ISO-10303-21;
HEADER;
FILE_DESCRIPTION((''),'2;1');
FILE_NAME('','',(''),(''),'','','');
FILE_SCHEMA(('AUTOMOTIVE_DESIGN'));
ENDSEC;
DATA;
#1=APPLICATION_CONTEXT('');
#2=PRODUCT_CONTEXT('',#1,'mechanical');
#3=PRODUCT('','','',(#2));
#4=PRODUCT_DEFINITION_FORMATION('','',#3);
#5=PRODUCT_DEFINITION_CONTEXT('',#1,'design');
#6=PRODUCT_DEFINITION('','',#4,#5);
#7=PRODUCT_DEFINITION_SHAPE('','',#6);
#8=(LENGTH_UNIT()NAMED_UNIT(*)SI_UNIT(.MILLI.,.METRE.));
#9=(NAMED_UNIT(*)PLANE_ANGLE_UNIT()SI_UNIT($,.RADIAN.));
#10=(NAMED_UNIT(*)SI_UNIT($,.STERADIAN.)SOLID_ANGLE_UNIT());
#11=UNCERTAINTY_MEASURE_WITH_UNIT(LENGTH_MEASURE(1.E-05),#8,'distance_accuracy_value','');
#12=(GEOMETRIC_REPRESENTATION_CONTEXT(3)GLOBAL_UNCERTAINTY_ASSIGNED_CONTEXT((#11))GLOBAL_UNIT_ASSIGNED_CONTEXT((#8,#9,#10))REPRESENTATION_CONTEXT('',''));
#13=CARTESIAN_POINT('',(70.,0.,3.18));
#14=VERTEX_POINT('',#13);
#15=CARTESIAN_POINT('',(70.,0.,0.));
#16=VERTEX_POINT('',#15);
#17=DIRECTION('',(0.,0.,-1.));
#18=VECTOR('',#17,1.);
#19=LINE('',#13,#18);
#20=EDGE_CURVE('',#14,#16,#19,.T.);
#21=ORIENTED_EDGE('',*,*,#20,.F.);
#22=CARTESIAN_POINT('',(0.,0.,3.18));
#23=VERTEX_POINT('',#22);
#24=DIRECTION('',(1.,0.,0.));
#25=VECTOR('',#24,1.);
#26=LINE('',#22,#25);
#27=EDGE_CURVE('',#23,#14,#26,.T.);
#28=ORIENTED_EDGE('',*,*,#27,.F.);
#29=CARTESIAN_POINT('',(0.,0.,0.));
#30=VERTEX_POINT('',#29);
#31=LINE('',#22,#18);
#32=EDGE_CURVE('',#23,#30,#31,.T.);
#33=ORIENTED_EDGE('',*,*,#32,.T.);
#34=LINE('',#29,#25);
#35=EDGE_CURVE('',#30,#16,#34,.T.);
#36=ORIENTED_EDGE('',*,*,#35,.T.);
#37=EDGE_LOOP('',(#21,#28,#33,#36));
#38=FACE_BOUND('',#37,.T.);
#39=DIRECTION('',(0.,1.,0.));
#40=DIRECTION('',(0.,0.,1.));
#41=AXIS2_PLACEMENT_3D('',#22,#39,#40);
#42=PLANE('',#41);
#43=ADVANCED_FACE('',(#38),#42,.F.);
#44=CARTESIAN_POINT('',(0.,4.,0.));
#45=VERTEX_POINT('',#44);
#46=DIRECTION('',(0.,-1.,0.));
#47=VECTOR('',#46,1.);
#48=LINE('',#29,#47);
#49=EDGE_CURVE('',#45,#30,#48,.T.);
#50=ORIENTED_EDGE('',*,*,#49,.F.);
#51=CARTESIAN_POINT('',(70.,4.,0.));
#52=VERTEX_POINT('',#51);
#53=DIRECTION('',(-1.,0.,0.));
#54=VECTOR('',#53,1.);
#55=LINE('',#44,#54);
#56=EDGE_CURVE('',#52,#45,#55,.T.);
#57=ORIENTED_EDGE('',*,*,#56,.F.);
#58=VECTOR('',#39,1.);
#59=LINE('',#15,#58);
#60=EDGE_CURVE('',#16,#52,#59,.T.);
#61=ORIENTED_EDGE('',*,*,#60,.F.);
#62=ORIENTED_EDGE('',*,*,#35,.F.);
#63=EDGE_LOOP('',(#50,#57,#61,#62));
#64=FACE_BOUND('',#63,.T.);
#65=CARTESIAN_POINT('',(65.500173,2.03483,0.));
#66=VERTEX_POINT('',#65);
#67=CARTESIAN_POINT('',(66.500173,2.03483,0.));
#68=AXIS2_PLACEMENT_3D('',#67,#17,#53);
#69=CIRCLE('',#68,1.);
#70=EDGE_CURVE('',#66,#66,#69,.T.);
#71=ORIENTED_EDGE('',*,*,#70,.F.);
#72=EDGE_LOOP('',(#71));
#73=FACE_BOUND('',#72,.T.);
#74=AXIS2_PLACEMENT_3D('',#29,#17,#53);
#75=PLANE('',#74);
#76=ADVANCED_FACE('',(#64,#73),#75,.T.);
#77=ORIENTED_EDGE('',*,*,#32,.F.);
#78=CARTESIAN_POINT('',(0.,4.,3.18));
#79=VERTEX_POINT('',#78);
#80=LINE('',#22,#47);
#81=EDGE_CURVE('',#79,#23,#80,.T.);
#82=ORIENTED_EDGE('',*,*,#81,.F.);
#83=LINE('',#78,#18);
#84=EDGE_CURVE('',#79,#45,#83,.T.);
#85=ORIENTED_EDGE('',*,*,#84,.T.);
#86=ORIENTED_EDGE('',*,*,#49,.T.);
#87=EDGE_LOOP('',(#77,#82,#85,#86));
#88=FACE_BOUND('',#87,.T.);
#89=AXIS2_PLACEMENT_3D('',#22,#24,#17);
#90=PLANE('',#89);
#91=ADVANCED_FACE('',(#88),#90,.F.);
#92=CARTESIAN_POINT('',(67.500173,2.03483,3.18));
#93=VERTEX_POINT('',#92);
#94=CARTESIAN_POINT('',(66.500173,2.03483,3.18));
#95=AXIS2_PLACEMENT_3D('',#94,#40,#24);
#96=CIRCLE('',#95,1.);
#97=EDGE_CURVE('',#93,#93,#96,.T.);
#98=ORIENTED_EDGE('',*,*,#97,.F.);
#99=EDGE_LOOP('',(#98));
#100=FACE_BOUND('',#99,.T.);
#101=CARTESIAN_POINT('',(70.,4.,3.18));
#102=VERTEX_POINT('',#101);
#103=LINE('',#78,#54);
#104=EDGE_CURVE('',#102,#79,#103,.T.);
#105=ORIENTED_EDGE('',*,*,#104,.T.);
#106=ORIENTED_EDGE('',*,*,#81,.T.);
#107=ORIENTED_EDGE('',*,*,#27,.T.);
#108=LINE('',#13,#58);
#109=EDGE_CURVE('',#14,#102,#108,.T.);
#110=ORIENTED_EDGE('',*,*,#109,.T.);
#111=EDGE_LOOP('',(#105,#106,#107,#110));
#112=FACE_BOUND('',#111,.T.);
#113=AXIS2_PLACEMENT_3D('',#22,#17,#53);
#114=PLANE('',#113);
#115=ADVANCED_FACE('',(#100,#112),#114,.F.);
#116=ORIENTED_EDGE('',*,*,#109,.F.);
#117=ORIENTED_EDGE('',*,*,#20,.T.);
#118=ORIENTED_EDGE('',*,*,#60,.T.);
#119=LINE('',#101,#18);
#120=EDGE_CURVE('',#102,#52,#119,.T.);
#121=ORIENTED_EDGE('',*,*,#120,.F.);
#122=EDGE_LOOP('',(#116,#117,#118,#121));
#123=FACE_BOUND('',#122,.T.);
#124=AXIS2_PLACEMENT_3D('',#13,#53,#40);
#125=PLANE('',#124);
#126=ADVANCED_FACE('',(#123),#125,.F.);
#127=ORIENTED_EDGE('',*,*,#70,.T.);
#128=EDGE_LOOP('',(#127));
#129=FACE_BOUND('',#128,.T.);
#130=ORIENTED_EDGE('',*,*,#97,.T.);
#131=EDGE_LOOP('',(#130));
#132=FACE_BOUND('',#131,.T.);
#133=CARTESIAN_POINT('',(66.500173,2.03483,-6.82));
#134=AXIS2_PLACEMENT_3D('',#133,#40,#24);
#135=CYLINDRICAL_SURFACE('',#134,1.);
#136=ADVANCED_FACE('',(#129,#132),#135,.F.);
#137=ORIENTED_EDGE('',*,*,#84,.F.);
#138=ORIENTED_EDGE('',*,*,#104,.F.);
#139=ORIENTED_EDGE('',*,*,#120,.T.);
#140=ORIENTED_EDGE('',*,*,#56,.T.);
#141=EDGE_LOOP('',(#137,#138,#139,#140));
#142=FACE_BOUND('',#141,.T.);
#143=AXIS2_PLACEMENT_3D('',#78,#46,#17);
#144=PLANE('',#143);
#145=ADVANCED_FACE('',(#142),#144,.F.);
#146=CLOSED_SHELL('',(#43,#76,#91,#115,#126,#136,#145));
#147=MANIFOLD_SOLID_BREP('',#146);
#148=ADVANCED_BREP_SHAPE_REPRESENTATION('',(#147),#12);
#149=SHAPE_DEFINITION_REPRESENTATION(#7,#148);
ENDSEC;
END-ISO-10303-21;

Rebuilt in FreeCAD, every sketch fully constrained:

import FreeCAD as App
import Part
import Sketcher
from FreeCAD import Vector
Q = App.Units.Quantity

doc = App.newDocument("Part")
params = doc.addObject("Spreadsheet::Sheet", "Params")
for row, (alias, value) in enumerate([
    ("sketch1_width", "70 mm"),
    ("sketch1_height", "4 mm"),
    ("pad1_length", "3.18 mm"),
    ("sketch2_diameter", "2 mm"),
    ("pocket1_length", "10 mm"),
], start=1):
    params.set(f"A{row}", alias)
    params.set(f"B{row}", "=" + value)
    params.setAlias(f"B{row}", alias)

body = doc.addObject("PartDesign::Body", "Body")

# Sketch on XY plane
sketch1 = body.newObject("Sketcher::SketchObject", "Sketch")
sketch1.AttachmentSupport = (doc.getObject("XY_Plane"), [""])
sketch1.MapMode = "FlatFace"
sketch1.addGeometry([
    Part.LineSegment(Vector(0, 4, 0), Vector(0, 0, 0)),
    Part.LineSegment(Vector(0, 0, 0), Vector(70, 0, 0)),
    Part.LineSegment(Vector(70, 0, 0), Vector(70, 4, 0)),
    Part.LineSegment(Vector(70, 4, 0), Vector(0, 4, 0)),
], False)
sketch1.addConstraint([
    Sketcher.Constraint("Coincident", 0, 2, 1, 1),
    Sketcher.Constraint("Coincident", 1, 2, 2, 1),
    Sketcher.Constraint("Coincident", 2, 2, 3, 1),
    Sketcher.Constraint("Coincident", 3, 2, 0, 1),
    Sketcher.Constraint("Vertical", 0),
    Sketcher.Constraint("Horizontal", 1),
    Sketcher.Constraint("Vertical", 2),
    Sketcher.Constraint("Horizontal", 3),
    Sketcher.Constraint("Coincident", 0, 2, -1, 1),
    Sketcher.Constraint("DistanceX", 1, 1, 1, 2, Q("70 mm")),
    Sketcher.Constraint("DistanceY", 0, 2, 0, 1, Q("4 mm")),
])
sketch1.setExpression("Constraints[9]", "Params.sketch1_width")
sketch1.setExpression("Constraints[10]", "Params.sketch1_height")
pad1 = body.newObject("PartDesign::Pad", "Pad")
pad1.Profile = sketch1
pad1.setExpression("Length", "Params.pad1_length")

# Sketch on XY plane
sketch2 = body.newObject("Sketcher::SketchObject", "Sketch001")
sketch2.AttachmentSupport = (doc.getObject("XY_Plane"), [""])
sketch2.MapMode = "FlatFace"
sketch2.AttachmentOffset = App.Placement(Vector(0, 0, 3.18), App.Rotation())
sketch2.addGeometry(Part.Circle(Vector(66.5, 2, 0), Vector(0, 0, 1), 1), False)
sketch2.addConstraint([
    Sketcher.Constraint("Diameter", 0, Q("2 mm")),
    Sketcher.Constraint("DistanceY", -1, 1, 0, 3, Q("2.03483 mm")),
    Sketcher.Constraint("DistanceX", -1, 1, 0, 3, Q("66.500173 mm")),
])
sketch2.setExpression("Constraints[0]", "Params.sketch2_diameter")
pocket1 = body.newObject("PartDesign::Pocket", "Pocket")
pocket1.Profile = sketch2
pocket1.setExpression("Length", "Params.pocket1_length")

doc.recompute()
